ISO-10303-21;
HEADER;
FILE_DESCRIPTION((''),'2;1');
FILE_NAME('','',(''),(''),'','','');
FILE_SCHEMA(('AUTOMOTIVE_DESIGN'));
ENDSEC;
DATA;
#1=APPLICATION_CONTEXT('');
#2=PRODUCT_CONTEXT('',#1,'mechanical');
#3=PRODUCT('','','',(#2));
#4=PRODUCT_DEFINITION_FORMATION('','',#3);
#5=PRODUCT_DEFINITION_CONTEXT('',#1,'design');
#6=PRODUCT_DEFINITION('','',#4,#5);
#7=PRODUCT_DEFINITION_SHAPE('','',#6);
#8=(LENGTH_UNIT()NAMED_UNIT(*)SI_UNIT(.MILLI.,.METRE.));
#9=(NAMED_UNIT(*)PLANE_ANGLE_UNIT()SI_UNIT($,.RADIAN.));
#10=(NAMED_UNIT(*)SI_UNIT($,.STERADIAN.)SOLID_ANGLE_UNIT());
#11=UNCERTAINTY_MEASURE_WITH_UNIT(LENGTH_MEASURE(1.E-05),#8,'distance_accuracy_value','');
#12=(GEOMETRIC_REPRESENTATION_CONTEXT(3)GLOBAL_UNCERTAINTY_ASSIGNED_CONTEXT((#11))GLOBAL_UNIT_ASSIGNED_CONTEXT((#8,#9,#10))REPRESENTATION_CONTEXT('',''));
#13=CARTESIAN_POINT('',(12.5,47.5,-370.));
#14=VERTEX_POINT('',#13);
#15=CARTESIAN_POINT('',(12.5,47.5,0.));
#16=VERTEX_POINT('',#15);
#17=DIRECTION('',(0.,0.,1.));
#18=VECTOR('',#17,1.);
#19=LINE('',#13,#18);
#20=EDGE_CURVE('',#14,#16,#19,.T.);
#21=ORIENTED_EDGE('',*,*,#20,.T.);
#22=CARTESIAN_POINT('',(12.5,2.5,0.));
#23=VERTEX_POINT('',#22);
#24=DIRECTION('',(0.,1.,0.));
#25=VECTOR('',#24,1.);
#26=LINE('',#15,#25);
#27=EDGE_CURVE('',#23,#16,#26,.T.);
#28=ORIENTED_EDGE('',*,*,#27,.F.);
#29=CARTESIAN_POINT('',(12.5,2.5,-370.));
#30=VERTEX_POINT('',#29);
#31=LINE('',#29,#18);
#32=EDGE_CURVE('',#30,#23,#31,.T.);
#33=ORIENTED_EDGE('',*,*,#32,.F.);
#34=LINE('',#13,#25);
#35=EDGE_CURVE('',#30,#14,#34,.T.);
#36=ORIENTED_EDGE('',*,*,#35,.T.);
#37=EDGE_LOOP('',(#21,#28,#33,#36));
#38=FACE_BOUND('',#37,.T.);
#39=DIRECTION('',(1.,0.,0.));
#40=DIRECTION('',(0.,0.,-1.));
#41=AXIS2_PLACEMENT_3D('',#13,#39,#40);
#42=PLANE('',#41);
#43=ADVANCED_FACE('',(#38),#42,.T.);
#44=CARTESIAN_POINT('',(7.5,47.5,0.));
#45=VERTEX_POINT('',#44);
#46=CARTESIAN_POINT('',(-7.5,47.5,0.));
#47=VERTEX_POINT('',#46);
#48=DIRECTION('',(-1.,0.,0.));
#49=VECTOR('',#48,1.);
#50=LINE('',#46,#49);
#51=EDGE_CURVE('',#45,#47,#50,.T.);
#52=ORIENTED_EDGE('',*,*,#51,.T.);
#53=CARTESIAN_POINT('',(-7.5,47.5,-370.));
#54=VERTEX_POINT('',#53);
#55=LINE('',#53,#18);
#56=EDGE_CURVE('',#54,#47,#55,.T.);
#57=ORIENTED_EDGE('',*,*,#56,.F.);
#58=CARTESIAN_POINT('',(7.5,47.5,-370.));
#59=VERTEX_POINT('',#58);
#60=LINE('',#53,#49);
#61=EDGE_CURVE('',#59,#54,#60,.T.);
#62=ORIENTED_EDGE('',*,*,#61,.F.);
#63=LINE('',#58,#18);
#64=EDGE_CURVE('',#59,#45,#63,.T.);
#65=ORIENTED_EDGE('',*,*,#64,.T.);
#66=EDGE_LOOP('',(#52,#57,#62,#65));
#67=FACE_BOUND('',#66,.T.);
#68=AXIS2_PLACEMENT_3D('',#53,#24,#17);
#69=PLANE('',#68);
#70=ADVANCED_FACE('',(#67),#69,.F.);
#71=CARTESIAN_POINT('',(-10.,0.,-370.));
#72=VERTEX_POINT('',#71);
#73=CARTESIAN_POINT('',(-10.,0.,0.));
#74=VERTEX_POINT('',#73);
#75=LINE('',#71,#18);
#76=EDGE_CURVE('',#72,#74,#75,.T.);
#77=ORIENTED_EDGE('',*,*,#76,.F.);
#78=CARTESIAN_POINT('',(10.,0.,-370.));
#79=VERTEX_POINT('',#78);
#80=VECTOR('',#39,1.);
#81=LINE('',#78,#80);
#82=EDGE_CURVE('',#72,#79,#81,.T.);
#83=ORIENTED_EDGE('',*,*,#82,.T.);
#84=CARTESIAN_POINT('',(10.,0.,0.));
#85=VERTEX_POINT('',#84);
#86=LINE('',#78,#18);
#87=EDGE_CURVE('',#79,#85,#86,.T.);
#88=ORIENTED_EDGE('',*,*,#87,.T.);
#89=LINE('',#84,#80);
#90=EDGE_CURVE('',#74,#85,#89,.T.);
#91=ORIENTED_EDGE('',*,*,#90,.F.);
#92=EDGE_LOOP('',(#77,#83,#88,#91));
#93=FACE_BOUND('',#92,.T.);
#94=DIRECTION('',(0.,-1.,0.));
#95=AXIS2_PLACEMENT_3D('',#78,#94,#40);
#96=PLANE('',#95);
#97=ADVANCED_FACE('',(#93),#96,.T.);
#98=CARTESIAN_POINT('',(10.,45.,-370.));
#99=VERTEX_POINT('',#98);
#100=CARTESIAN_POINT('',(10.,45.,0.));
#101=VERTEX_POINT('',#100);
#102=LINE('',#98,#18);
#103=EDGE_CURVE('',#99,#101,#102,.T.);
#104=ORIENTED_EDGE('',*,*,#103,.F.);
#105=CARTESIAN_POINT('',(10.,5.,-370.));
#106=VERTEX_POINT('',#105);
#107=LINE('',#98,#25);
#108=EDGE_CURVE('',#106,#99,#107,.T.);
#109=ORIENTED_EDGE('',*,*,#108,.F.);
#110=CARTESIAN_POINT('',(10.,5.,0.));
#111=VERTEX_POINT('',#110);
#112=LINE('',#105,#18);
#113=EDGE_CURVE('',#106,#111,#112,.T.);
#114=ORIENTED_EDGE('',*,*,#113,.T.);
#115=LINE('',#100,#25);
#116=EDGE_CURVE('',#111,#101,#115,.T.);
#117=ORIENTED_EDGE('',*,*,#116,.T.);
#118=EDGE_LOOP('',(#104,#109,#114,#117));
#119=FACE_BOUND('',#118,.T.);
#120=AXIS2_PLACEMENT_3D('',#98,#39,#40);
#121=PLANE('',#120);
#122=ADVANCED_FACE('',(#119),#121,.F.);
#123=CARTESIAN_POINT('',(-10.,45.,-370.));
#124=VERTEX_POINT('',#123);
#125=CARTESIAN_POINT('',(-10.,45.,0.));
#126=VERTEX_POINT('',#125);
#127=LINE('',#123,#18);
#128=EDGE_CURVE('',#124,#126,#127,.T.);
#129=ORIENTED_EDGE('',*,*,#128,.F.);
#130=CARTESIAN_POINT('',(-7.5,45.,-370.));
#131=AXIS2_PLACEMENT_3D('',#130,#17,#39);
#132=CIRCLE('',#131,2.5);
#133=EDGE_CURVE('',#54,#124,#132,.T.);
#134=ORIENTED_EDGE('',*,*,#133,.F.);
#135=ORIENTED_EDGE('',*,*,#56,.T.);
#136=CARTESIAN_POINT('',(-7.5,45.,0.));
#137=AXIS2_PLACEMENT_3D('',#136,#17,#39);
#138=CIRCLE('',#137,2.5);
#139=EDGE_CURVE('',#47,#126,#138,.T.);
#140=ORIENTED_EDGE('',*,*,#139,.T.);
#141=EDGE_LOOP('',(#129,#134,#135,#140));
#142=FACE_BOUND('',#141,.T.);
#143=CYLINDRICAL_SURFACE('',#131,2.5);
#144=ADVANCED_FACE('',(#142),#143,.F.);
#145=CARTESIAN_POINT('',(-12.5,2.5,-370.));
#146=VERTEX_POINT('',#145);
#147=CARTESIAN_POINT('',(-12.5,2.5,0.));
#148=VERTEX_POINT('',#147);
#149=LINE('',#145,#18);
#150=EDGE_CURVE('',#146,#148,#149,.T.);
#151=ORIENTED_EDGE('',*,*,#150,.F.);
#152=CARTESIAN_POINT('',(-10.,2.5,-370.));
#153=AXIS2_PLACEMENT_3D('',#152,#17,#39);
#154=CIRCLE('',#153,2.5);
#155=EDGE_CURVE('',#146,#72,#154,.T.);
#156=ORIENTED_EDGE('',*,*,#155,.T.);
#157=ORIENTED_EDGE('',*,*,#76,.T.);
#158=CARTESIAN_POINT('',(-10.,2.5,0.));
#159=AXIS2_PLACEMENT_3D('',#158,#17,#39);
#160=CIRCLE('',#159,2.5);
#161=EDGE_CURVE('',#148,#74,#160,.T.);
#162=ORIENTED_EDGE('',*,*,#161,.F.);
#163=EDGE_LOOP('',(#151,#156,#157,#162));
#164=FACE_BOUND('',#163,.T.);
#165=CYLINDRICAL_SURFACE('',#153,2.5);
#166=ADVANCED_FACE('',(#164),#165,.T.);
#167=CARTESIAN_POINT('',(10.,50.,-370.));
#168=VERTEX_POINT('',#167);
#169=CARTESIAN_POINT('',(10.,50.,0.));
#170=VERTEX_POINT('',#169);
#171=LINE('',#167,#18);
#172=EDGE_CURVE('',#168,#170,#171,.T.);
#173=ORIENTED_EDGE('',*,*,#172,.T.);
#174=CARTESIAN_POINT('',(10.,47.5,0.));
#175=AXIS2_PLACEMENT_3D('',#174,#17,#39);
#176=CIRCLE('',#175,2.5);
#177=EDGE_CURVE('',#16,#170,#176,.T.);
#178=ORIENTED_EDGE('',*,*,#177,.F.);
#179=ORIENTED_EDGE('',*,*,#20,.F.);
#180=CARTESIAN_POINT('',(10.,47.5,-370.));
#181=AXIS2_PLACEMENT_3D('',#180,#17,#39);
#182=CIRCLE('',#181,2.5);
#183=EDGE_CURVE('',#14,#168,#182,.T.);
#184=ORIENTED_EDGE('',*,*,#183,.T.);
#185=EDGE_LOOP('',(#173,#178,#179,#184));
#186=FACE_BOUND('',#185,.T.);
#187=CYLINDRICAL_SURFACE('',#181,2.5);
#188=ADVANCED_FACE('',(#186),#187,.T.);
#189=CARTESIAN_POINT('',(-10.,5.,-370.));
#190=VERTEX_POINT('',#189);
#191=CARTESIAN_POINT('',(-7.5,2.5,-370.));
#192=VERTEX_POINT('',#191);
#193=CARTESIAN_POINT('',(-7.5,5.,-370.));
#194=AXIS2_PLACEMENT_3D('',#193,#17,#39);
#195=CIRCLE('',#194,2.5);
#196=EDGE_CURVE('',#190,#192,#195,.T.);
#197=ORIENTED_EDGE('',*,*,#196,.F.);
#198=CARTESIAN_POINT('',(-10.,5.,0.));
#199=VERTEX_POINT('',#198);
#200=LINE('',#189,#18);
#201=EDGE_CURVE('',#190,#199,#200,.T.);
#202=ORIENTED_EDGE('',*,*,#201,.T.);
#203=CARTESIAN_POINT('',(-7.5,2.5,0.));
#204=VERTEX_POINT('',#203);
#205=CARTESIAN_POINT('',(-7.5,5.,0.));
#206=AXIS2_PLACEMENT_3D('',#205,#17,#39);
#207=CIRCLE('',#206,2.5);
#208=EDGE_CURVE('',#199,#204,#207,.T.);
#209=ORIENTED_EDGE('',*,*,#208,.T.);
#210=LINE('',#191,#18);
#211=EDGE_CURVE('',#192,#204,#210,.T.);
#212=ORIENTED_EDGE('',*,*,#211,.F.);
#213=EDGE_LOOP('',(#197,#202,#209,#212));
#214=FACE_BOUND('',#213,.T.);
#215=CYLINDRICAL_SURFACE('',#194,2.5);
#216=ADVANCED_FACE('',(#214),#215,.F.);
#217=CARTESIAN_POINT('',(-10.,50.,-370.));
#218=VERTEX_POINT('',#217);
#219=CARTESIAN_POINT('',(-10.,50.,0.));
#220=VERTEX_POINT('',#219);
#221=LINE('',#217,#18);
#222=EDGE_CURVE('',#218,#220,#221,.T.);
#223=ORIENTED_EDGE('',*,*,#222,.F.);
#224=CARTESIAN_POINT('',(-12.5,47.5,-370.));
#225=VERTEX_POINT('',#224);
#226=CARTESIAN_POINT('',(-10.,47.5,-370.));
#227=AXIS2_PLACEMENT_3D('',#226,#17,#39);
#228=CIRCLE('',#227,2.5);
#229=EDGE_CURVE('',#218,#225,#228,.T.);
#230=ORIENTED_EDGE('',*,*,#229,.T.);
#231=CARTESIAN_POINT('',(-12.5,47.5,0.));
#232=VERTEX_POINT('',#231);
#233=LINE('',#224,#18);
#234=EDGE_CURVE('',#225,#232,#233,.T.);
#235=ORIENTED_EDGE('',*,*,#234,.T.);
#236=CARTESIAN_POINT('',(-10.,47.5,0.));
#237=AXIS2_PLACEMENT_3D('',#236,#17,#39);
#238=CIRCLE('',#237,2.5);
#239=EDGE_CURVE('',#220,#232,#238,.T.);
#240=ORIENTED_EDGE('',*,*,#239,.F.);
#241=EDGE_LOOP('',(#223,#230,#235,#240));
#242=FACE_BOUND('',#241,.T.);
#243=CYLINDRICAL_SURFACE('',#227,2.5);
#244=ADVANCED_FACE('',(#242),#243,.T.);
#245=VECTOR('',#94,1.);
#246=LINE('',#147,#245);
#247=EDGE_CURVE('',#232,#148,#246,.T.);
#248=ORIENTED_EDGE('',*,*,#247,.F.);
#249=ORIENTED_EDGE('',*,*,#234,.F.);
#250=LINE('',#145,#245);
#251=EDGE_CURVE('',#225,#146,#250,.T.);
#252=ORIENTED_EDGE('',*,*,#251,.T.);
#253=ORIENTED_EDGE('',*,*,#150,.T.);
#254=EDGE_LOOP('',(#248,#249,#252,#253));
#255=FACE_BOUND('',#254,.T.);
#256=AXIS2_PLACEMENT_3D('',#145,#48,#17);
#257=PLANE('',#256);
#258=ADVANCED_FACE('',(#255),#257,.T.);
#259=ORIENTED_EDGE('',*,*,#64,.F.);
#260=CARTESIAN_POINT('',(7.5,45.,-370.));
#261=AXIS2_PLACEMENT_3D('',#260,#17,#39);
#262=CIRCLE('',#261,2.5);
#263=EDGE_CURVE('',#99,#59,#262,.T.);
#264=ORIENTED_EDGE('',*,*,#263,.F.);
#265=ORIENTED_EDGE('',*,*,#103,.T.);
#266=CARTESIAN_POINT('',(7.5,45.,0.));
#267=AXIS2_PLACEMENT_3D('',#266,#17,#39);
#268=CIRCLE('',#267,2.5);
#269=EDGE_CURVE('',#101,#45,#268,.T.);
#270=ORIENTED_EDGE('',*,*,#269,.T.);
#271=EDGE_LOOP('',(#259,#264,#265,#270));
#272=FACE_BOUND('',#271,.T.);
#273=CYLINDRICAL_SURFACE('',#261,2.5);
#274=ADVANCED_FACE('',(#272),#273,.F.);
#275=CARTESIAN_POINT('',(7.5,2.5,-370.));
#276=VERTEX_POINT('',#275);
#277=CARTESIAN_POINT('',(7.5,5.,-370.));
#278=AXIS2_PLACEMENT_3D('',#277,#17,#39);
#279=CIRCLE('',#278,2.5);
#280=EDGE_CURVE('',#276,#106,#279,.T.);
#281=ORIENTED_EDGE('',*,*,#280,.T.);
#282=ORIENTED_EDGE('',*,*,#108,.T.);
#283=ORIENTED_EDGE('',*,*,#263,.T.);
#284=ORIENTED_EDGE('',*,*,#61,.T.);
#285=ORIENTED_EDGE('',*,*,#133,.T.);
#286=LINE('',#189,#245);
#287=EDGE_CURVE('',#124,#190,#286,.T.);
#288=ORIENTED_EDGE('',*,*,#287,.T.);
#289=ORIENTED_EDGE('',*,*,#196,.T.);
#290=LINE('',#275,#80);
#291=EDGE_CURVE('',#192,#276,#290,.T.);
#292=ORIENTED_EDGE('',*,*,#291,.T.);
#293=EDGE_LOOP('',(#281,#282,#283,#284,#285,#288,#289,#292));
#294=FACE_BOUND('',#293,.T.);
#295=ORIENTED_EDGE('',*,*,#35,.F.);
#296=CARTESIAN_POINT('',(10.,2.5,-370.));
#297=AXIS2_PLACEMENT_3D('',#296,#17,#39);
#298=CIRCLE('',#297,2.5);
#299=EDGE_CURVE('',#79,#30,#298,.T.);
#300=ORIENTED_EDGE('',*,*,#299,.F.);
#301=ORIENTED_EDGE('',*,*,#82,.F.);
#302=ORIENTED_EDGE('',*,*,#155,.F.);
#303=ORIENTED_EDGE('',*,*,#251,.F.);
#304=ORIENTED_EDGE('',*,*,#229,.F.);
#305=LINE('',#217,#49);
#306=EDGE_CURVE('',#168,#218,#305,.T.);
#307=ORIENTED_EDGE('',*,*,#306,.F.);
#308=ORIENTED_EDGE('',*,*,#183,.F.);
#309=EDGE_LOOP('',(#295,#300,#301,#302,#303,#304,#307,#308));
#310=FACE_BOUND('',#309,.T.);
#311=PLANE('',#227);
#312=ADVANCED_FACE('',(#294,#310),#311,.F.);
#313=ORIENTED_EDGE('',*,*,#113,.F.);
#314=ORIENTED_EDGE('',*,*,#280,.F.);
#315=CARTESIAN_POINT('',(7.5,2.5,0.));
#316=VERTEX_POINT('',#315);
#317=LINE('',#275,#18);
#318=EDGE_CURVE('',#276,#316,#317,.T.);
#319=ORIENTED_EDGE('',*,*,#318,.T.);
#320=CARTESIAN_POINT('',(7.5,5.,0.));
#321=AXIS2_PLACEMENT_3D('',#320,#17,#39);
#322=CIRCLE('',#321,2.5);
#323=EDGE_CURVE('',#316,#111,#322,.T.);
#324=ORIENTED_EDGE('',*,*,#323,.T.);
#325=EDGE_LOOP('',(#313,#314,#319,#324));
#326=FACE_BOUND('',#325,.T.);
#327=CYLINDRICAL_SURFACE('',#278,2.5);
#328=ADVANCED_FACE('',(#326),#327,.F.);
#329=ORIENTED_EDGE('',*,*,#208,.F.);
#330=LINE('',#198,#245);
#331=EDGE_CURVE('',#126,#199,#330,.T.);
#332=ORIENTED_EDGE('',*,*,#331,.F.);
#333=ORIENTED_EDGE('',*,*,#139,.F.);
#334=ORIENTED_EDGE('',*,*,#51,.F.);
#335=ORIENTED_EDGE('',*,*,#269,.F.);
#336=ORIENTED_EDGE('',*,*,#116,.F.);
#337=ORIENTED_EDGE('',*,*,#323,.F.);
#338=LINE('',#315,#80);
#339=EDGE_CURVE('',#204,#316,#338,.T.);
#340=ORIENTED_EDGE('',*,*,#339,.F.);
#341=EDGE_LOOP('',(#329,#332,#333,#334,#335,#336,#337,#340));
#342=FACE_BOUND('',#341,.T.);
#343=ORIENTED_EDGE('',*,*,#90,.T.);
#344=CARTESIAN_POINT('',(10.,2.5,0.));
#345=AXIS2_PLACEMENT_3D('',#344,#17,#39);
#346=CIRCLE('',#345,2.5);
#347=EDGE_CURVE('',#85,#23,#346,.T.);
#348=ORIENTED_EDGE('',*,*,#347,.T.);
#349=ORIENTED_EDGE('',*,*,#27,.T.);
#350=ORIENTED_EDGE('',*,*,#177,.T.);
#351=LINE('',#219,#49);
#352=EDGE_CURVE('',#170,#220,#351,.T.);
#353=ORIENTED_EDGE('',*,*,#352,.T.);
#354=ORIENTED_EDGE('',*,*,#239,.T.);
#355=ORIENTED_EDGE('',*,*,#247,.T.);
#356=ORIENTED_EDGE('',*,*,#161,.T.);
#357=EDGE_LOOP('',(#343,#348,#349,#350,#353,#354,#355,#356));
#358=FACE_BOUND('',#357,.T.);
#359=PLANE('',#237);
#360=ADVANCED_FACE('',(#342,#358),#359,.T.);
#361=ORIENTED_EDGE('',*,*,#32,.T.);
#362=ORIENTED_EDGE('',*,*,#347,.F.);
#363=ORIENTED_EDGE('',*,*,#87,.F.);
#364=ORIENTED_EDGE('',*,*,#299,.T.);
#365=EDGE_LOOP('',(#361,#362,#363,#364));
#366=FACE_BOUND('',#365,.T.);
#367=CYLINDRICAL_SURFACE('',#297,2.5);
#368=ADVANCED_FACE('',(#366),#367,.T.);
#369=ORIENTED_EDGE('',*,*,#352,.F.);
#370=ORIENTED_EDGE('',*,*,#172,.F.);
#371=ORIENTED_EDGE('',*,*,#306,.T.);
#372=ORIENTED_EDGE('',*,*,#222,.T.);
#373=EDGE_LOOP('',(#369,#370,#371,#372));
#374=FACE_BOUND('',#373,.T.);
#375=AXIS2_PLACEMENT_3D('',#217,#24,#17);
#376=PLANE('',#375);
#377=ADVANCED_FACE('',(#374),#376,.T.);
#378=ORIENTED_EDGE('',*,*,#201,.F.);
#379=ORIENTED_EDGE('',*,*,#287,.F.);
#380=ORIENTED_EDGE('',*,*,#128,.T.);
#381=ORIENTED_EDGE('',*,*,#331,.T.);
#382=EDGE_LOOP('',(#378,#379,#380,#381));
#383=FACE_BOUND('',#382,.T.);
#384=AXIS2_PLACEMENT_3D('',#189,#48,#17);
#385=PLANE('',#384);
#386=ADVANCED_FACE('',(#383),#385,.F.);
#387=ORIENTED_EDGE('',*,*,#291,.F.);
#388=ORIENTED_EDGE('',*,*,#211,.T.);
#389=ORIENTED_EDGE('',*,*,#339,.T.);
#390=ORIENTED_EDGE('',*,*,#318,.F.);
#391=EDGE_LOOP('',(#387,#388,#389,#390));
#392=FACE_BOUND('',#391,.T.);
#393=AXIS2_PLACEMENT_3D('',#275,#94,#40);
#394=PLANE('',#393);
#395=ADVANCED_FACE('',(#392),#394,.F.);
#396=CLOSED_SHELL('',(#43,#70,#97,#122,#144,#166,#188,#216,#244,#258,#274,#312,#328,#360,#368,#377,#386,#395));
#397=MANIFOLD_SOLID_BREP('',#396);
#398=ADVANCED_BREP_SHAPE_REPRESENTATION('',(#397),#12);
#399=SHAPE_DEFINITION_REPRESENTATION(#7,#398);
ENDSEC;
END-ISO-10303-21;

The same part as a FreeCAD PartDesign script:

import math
import FreeCAD as App
import Part
import Sketcher
Q = App.Units.Quantity

doc = App.newDocument("Part")
body = doc.addObject("PartDesign::Body", "Body")

sketch1 = doc.addObject("Sketcher::SketchObject", "Sketch")
body.addObject(sketch1)
sketch1.AttachmentSupport = (doc.XY_Plane, [""])
sketch1.MapMode = "FlatFace"
sketch1.addGeometry([
    Part.LineSegment(App.Vector(10, 50, 0), App.Vector(-10, 50, 0)),
    Part.ArcOfCircle(Part.Circle(App.Vector(-10, 47.5, 0), App.Vector(0, 0, 1), 2.5), math.radians(90), math.radians(180)),
    Part.LineSegment(App.Vector(-12.5, 47.5, 0), App.Vector(-12.5, 2.5, 0)),
    Part.ArcOfCircle(Part.Circle(App.Vector(-10, 2.5, 0), App.Vector(0, 0, 1), 2.5), math.radians(180), math.radians(270)),
    Part.LineSegment(App.Vector(-10, 0, 0), App.Vector(10, 0, 0)),
    Part.ArcOfCircle(Part.Circle(App.Vector(10, 2.5, 0), App.Vector(0, 0, 1), 2.5), math.radians(-90), math.radians(0)),
    Part.LineSegment(App.Vector(12.5, 2.5, 0), App.Vector(12.5, 47.5, 0)),
    Part.ArcOfCircle(Part.Circle(App.Vector(10, 47.5, 0), App.Vector(0, 0, 1), 2.5), math.radians(0), math.radians(90)),
    Part.LineSegment(App.Vector(-7.5, 47.5, 0), App.Vector(7.5, 47.5, 0)),
    Part.ArcOfCircle(Part.Circle(App.Vector(7.5, 45, 0), App.Vector(0, 0, 1), 2.5), math.radians(0), math.radians(90)),
    Part.LineSegment(App.Vector(10, 45, 0), App.Vector(10, 5, 0)),
    Part.ArcOfCircle(Part.Circle(App.Vector(7.5, 5, 0), App.Vector(0, 0, 1), 2.5), math.radians(-90), math.radians(0)),
    Part.LineSegment(App.Vector(7.5, 2.5, 0), App.Vector(-7.5, 2.5, 0)),
    Part.ArcOfCircle(Part.Circle(App.Vector(-7.5, 5, 0), App.Vector(0, 0, 1), 2.5), math.radians(180), math.radians(270)),
    Part.LineSegment(App.Vector(-10, 5, 0), App.Vector(-10, 45, 0)),
    Part.ArcOfCircle(Part.Circle(App.Vector(-7.5, 45, 0), App.Vector(0, 0, 1), 2.5), math.radians(90), math.radians(180)),
], False)
sketch1.addConstraint([
    Sketcher.Constraint("Tangent", 0, 2, 1, 1),
    Sketcher.Constraint("Tangent", 1, 2, 2, 1),
    Sketcher.Constraint("Tangent", 2, 2, 3, 1),
    Sketcher.Constraint("Tangent", 3, 2, 4, 1),
    Sketcher.Constraint("Tangent", 4, 2, 5, 1),
    Sketcher.Constraint("Tangent", 5, 2, 6, 1),
    Sketcher.Constraint("Tangent", 6, 2, 7, 1),
    Sketcher.Constraint("Tangent", 7, 2, 0, 1),
    Sketcher.Constraint("Tangent", 8, 2, 9, 2),
    Sketcher.Constraint("Tangent", 9, 1, 10, 1),
    Sketcher.Constraint("Tangent", 10, 2, 11, 2),
    Sketcher.Constraint("Tangent", 11, 1, 12, 1),
    Sketcher.Constraint("Tangent", 12, 2, 13, 2),
    Sketcher.Constraint("Tangent", 13, 1, 14, 1),
    Sketcher.Constraint("Tangent", 14, 2, 15, 2),
    Sketcher.Constraint("Tangent", 15, 1, 8, 1),
    Sketcher.Constraint("Horizontal", 0),
    Sketcher.Constraint("Vertical", 2),
    Sketcher.Constraint("Horizontal", 4),
    Sketcher.Constraint("Vertical", 6),
    Sketcher.Constraint("Horizontal", 8),
    Sketcher.Constraint("Vertical", 10),
    Sketcher.Constraint("Horizontal", 12),
    Sketcher.Constraint("Vertical", 14),
    Sketcher.Constraint("Equal", 1, 3),
    Sketcher.Constraint("Equal", 3, 5),
    Sketcher.Constraint("Equal", 5, 7),
    Sketcher.Constraint("Equal", 7, 9),
    Sketcher.Constraint("Equal", 9, 11),
    Sketcher.Constraint("Equal", 11, 13),
    Sketcher.Constraint("Equal", 13, 15),
    Sketcher.Constraint("Symmetric", 3, 2, 4, 2, -1, 1),
    Sketcher.Constraint("Horizontal", 6, 2, 8, 2),
    Sketcher.Constraint("Horizontal", 5, 2, 11, 1),
    Sketcher.Constraint("Vertical", 7, 2, 9, 1),
    Sketcher.Constraint("Vertical", 3, 2, 13, 1),
    Sketcher.Constraint("Radius", 1, Q("2.5 mm")),
    Sketcher.Constraint("DistanceX", 0, 2, 0, 1, Q("20 mm")),
    Sketcher.Constraint("DistanceY", 2, 2, 2, 1, Q("45 mm")),
])
pad1 = doc.addObject("PartDesign::Pad", "Pad")
body.addObject(pad1)
pad1.Profile = sketch1
pad1.Length = 370
pad1.Reversed = True

doc.recompute()
